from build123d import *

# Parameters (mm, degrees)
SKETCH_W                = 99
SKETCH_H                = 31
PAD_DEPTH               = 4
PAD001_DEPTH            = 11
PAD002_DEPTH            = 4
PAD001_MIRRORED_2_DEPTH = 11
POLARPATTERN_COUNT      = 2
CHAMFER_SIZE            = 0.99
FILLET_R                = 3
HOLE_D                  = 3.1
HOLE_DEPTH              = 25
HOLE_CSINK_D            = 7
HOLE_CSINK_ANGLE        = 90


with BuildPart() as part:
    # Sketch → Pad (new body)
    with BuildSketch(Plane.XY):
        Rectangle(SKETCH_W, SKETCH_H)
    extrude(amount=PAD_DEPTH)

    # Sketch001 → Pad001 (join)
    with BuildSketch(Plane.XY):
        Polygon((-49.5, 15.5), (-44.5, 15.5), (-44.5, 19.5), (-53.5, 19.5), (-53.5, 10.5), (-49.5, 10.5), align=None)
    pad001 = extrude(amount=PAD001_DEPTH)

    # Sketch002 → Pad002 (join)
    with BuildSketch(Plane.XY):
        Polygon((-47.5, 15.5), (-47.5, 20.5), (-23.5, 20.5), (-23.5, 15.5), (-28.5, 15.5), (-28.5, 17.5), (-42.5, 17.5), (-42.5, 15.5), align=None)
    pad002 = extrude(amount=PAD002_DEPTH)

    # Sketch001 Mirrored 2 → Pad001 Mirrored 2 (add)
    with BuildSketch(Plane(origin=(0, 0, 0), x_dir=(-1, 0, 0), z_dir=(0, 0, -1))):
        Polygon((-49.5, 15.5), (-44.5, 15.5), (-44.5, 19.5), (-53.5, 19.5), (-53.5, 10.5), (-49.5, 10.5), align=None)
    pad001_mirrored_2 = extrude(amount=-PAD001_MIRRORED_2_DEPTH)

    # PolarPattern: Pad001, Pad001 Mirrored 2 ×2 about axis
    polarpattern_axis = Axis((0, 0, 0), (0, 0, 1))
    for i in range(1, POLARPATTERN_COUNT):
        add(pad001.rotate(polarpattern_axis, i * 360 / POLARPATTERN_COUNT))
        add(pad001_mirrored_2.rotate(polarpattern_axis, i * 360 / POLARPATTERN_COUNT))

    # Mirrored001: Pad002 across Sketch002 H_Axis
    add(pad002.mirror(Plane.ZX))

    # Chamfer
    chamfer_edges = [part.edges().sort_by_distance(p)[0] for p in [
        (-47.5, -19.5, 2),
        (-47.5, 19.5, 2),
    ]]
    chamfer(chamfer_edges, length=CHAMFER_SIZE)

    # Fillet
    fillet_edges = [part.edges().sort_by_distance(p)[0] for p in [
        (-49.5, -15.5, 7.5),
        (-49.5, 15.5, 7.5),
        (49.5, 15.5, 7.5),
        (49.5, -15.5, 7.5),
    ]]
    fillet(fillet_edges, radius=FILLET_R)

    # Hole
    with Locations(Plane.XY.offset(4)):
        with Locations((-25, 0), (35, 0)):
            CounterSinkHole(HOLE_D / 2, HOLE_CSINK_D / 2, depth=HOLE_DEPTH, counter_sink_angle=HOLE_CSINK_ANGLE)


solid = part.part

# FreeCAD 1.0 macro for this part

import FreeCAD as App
import Part
import Sketcher
Q = App.Units.Quantity


def edges_at(feature, points):
    """Names of the edges that pass closest to the given points."""
    edges = feature.Shape.Edges
    near = lambda p: min(range(len(edges)), key=lambda i: edges[i].distToShape(Part.Vertex(*p))[0])
    return sorted({f"Edge{near(p) + 1}" for p in points})

doc = App.newDocument("Part")
body = doc.addObject("PartDesign::Body", "Body")

# Sketch on XY plane
sketch1 = body.newObject("Sketcher::SketchObject", "Sketch")
sketch1.AttachmentSupport = (doc.getObject("XY_Plane"), [""])
sketch1.MapMode = "FlatFace"
sketch1.addGeometry([
    Part.LineSegment(App.Vector(-50, 16, 0), App.Vector(-50, -16, 0)),
    Part.LineSegment(App.Vector(-50, -16, 0), App.Vector(50, -16, 0)),
    Part.LineSegment(App.Vector(50, -16, 0), App.Vector(50, 16, 0)),
    Part.LineSegment(App.Vector(50, 16, 0), App.Vector(-50, 16, 0)),
], False)
sketch1.addConstraint([
    Sketcher.Constraint("Coincident", 0, 2, 1, 1),
    Sketcher.Constraint("Coincident", 1, 2, 2, 1),
    Sketcher.Constraint("Coincident", 2, 2, 3, 1),
    Sketcher.Constraint("Coincident", 3, 2, 0, 1),
    Sketcher.Constraint("Vertical", 0),
    Sketcher.Constraint("Horizontal", 1),
    Sketcher.Constraint("Vertical", 2),
    Sketcher.Constraint("Horizontal", 3),
    Sketcher.Constraint("Symmetric", 0, 2, 2, 2, -1, 1),
    Sketcher.Constraint("DistanceX", 1, 1, 1, 2, Q("99 mm")),
    Sketcher.Constraint("DistanceY", 0, 2, 0, 1, Q("31 mm")),
])
pad1 = body.newObject("PartDesign::Pad", "Pad")
pad1.Profile = sketch1
pad1.Length = 4

# Sketch on XY plane
sketch2 = body.newObject("Sketcher::SketchObject", "Sketch001")
sketch2.AttachmentSupport = (doc.getObject("XY_Plane"), [""])
sketch2.MapMode = "FlatFace"
sketch2.addGeometry([
    Part.LineSegment(App.Vector(-49.5, 15.5, 0), App.Vector(-44.5, 15.5, 0)),  # 0
    Part.LineSegment(App.Vector(-44.5, 15.5, 0), App.Vector(-44.5, 19.5, 0)),  # 1
    Part.LineSegment(App.Vector(-44.5, 19.5, 0), App.Vector(-53.5, 19.5, 0)),  # 2
    Part.LineSegment(App.Vector(-53.5, 19.5, 0), App.Vector(-53.5, 10.5, 0)),  # 3
    Part.LineSegment(App.Vector(-53.5, 10.5, 0), App.Vector(-49.5, 10.5, 0)),  # 4
    Part.LineSegment(App.Vector(-49.5, 10.5, 0), App.Vector(-49.5, 15.5, 0)),  # 5
], False)
sketch2.addConstraint([
    Sketcher.Constraint("Coincident", 0, 2, 1, 1),
    Sketcher.Constraint("Coincident", 1, 2, 2, 1),
    Sketcher.Constraint("Coincident", 2, 2, 3, 1),
    Sketcher.Constraint("Coincident", 3, 2, 4, 1),
    Sketcher.Constraint("Coincident", 4, 2, 5, 1),
    Sketcher.Constraint("Coincident", 5, 2, 0, 1),
    Sketcher.Constraint("Horizontal", 0),
    Sketcher.Constraint("Vertical", 1),
    Sketcher.Constraint("Horizontal", 2),
    Sketcher.Constraint("Vertical", 3),
    Sketcher.Constraint("Horizontal", 4),
    Sketcher.Constraint("Vertical", 5),
    Sketcher.Constraint("Equal", 4, 1),
    Sketcher.Constraint("Equal", 2, 3),
    Sketcher.Constraint("DistanceX", 0, 1, 0, 2, Q("5 mm")),
    Sketcher.Constraint("DistanceX", 2, 2, 2, 1, Q("9 mm")),
    Sketcher.Constraint("DistanceX", 0, 2, -1, 1, Q("44.5 mm")),
    Sketcher.Constraint("DistanceY", -1, 1, 0, 2, Q("15.5 mm")),
])
pad2 = body.newObject("PartDesign::Pad", "Pad001")
pad2.Profile = sketch2
pad2.Length = 11

# Sketch on XY plane
sketch3 = body.newObject("Sketcher::SketchObject", "Sketch002")
sketch3.AttachmentSupport = (doc.getObject("XY_Plane"), [""])
sketch3.MapMode = "FlatFace"
sketch3.addGeometry([
    Part.LineSegment(App.Vector(-47.5, 20.5, 0), App.Vector(-47.5, 15.5, 0)),  # 0
    Part.LineSegment(App.Vector(-47.5, 15.5, 0), App.Vector(-42.5, 15.5, 0)),  # 1
    Part.LineSegment(App.Vector(-42.5, 15.5, 0), App.Vector(-42.5, 17.5, 0)),  # 2
    Part.LineSegment(App.Vector(-42.5, 17.5, 0), App.Vector(-28.5, 17.5, 0)),  # 3
    Part.LineSegment(App.Vector(-28.5, 17.5, 0), App.Vector(-28.5, 15.5, 0)),  # 4
    Part.LineSegment(App.Vector(-28.5, 15.5, 0), App.Vector(-23.5, 15.5, 0)),  # 5
    Part.LineSegment(App.Vector(-23.5, 15.5, 0), App.Vector(-23.5, 20.5, 0)),  # 6
    Part.LineSegment(App.Vector(-23.5, 20.5, 0), App.Vector(-47.5, 20.5, 0)),  # 7
], False)
sketch3.addConstraint([
    Sketcher.Constraint("Coincident", 0, 2, 1, 1),
    Sketcher.Constraint("Coincident", 1, 2, 2, 1),
    Sketcher.Constraint("Coincident", 2, 2, 3, 1),
    Sketcher.Constraint("Coincident", 3, 2, 4, 1),
    Sketcher.Constraint("Coincident", 4, 2, 5, 1),
    Sketcher.Constraint("Coincident", 5, 2, 6, 1),
    Sketcher.Constraint("Coincident", 6, 2, 7, 1),
    Sketcher.Constraint("Coincident", 7, 2, 0, 1),
    Sketcher.Constraint("Vertical", 0),
    Sketcher.Constraint("Horizontal", 1),
    Sketcher.Constraint("Vertical", 2),
    Sketcher.Constraint("Horizontal", 3),
    Sketcher.Constraint("Vertical", 4),
    Sketcher.Constraint("Horizontal", 5),
    Sketcher.Constraint("Vertical", 6),
    Sketcher.Constraint("Horizontal", 7),
    Sketcher.Constraint("Horizontal", 1, 2, 4, 2),
    Sketcher.Constraint("Equal", 1, 5),
    Sketcher.Constraint("Equal", 5, 0),
    Sketcher.Constraint("DistanceX", 1, 1, 1, 2, Q("5 mm")),
    Sketcher.Constraint("DistanceX", 3, 1, 3, 2, Q("14 mm")),
    Sketcher.Constraint("DistanceY", 2, 1, 2, 2, Q("2 mm")),
    Sketcher.Constraint("DistanceX", 0, 2, -1, 1, Q("47.5 mm")),
    Sketcher.Constraint("DistanceY", -1, 1, 0, 2, Q("15.5 mm")),
])
pad3 = body.newObject("PartDesign::Pad", "Pad002")
pad3.Profile = sketch3
pad3.Length = 4

# Sketch on XY plane
sketch4 = body.newObject("Sketcher::SketchObject", "Sketch003")
sketch4.AttachmentSupport = (doc.getObject("XY_Plane"), [""])
sketch4.MapMode = "FlatFace"
sketch4.addGeometry([
    Part.LineSegment(App.Vector(49.5, 15.5, 0), App.Vector(44.5, 15.5, 0)),  # 0
    Part.LineSegment(App.Vector(44.5, 15.5, 0), App.Vector(44.5, 19.5, 0)),  # 1
    Part.LineSegment(App.Vector(44.5, 19.5, 0), App.Vector(53.5, 19.5, 0)),  # 2
    Part.LineSegment(App.Vector(53.5, 19.5, 0), App.Vector(53.5, 10.5, 0)),  # 3
    Part.LineSegment(App.Vector(53.5, 10.5, 0), App.Vector(49.5, 10.5, 0)),  # 4
    Part.LineSegment(App.Vector(49.5, 10.5, 0), App.Vector(49.5, 15.5, 0)),  # 5
], False)
sketch4.addConstraint([
    Sketcher.Constraint("Coincident", 0, 2, 1, 1),
    Sketcher.Constraint("Coincident", 1, 2, 2, 1),
    Sketcher.Constraint("Coincident", 2, 2, 3, 1),
    Sketcher.Constraint("Coincident", 3, 2, 4, 1),
    Sketcher.Constraint("Coincident", 4, 2, 5, 1),
    Sketcher.Constraint("Coincident", 5, 2, 0, 1),
    Sketcher.Constraint("Horizontal", 0),
    Sketcher.Constraint("Vertical", 1),
    Sketcher.Constraint("Horizontal", 2),
    Sketcher.Constraint("Vertical", 3),
    Sketcher.Constraint("Horizontal", 4),
    Sketcher.Constraint("Vertical", 5),
    Sketcher.Constraint("Equal", 4, 1),
    Sketcher.Constraint("Equal", 2, 3),
    Sketcher.Constraint("DistanceX", 0, 2, 0, 1, Q("5 mm")),
    Sketcher.Constraint("DistanceX", 2, 1, 2, 2, Q("9 mm")),
    Sketcher.Constraint("DistanceX", -1, 1, 0, 2, Q("44.5 mm")),
    Sketcher.Constraint("DistanceY", -1, 1, 0, 2, Q("15.5 mm")),
])
pad4 = body.newObject("PartDesign::Pad", "Pad003")
pad4.Profile = sketch4
pad4.Length = 11
doc.recompute()

polarpattern = body.newObject("PartDesign::PolarPattern", "PolarPattern")
polarpattern.Originals = [pad2, pad4]
polarpattern.Axis = (doc.getObject("Z_Axis"), [""])
polarpattern.Angle = 360
polarpattern.Occurrences = 2
body.Tip = polarpattern
doc.recompute()

mirrored = body.newObject("PartDesign::Mirrored", "Mirrored")
mirrored.Originals = [pad3]
mirrored.MirrorPlane = (doc.getObject("XZ_Plane"), [""])
body.Tip = mirrored
doc.recompute()

chamfer = body.newObject("PartDesign::Chamfer", "Chamfer")
chamfer.Base = (mirrored, edges_at(mirrored, [(-47.5, -19.5, 2), (-47.5, 19.5, 2)]))
chamfer.Size = 0.99
doc.recompute()

fillet = body.newObject("PartDesign::Fillet", "Fillet")
fillet.Base = (chamfer, edges_at(chamfer, [
    (-49.5, -15.5, 7.5),
    (-49.5, 15.5, 7.5),
    (49.5, 15.5, 7.5),
    (49.5, -15.5, 7.5),
]))
fillet.Radius = 3

# Sketch on XY plane
sketch5 = body.newObject("Sketcher::SketchObject", "Sketch004")
sketch5.AttachmentSupport = (doc.getObject("XY_Plane"), [""])
sketch5.MapMode = "FlatFace"
sketch5.AttachmentOffset = App.Placement(App.Vector(0, 0, 4), App.Rotation())
sketch5.addGeometry([
    Part.Circle(App.Vector(-25, 0, 0), App.Vector(0, 0, 1), 1.6),
    Part.Circle(App.Vector(35, 0, 0), App.Vector(0, 0, 1), 1.6),
], False)
sketch5.addConstraint([
    Sketcher.Constraint("Equal", 0, 1),
    Sketcher.Constraint("PointOnObject", 0, 3, -1),
    Sketcher.Constraint("PointOnObject", 1, 3, -1),
    Sketcher.Constraint("Diameter", 0, Q("3.1 mm")),
    Sketcher.Constraint("DistanceX", 0, 3, -1, 1, Q("25 mm")),
    Sketcher.Constraint("DistanceX", -1, 1, 1, 3, Q("35 mm")),
])
doc.recompute()
hole = body.newObject("PartDesign::Hole", "Hole")
hole.Profile = sketch5
hole.ThreadType = "None"
hole.Diameter = 3.1
hole.DepthType = "Dimension"
hole.Depth = 25
hole.DrillPoint = "Flat"
hole.HoleCutType = "Countersink"
hole.HoleCutDiameter = 7
hole.HoleCutCountersinkAngle = 90

doc.recompute()
